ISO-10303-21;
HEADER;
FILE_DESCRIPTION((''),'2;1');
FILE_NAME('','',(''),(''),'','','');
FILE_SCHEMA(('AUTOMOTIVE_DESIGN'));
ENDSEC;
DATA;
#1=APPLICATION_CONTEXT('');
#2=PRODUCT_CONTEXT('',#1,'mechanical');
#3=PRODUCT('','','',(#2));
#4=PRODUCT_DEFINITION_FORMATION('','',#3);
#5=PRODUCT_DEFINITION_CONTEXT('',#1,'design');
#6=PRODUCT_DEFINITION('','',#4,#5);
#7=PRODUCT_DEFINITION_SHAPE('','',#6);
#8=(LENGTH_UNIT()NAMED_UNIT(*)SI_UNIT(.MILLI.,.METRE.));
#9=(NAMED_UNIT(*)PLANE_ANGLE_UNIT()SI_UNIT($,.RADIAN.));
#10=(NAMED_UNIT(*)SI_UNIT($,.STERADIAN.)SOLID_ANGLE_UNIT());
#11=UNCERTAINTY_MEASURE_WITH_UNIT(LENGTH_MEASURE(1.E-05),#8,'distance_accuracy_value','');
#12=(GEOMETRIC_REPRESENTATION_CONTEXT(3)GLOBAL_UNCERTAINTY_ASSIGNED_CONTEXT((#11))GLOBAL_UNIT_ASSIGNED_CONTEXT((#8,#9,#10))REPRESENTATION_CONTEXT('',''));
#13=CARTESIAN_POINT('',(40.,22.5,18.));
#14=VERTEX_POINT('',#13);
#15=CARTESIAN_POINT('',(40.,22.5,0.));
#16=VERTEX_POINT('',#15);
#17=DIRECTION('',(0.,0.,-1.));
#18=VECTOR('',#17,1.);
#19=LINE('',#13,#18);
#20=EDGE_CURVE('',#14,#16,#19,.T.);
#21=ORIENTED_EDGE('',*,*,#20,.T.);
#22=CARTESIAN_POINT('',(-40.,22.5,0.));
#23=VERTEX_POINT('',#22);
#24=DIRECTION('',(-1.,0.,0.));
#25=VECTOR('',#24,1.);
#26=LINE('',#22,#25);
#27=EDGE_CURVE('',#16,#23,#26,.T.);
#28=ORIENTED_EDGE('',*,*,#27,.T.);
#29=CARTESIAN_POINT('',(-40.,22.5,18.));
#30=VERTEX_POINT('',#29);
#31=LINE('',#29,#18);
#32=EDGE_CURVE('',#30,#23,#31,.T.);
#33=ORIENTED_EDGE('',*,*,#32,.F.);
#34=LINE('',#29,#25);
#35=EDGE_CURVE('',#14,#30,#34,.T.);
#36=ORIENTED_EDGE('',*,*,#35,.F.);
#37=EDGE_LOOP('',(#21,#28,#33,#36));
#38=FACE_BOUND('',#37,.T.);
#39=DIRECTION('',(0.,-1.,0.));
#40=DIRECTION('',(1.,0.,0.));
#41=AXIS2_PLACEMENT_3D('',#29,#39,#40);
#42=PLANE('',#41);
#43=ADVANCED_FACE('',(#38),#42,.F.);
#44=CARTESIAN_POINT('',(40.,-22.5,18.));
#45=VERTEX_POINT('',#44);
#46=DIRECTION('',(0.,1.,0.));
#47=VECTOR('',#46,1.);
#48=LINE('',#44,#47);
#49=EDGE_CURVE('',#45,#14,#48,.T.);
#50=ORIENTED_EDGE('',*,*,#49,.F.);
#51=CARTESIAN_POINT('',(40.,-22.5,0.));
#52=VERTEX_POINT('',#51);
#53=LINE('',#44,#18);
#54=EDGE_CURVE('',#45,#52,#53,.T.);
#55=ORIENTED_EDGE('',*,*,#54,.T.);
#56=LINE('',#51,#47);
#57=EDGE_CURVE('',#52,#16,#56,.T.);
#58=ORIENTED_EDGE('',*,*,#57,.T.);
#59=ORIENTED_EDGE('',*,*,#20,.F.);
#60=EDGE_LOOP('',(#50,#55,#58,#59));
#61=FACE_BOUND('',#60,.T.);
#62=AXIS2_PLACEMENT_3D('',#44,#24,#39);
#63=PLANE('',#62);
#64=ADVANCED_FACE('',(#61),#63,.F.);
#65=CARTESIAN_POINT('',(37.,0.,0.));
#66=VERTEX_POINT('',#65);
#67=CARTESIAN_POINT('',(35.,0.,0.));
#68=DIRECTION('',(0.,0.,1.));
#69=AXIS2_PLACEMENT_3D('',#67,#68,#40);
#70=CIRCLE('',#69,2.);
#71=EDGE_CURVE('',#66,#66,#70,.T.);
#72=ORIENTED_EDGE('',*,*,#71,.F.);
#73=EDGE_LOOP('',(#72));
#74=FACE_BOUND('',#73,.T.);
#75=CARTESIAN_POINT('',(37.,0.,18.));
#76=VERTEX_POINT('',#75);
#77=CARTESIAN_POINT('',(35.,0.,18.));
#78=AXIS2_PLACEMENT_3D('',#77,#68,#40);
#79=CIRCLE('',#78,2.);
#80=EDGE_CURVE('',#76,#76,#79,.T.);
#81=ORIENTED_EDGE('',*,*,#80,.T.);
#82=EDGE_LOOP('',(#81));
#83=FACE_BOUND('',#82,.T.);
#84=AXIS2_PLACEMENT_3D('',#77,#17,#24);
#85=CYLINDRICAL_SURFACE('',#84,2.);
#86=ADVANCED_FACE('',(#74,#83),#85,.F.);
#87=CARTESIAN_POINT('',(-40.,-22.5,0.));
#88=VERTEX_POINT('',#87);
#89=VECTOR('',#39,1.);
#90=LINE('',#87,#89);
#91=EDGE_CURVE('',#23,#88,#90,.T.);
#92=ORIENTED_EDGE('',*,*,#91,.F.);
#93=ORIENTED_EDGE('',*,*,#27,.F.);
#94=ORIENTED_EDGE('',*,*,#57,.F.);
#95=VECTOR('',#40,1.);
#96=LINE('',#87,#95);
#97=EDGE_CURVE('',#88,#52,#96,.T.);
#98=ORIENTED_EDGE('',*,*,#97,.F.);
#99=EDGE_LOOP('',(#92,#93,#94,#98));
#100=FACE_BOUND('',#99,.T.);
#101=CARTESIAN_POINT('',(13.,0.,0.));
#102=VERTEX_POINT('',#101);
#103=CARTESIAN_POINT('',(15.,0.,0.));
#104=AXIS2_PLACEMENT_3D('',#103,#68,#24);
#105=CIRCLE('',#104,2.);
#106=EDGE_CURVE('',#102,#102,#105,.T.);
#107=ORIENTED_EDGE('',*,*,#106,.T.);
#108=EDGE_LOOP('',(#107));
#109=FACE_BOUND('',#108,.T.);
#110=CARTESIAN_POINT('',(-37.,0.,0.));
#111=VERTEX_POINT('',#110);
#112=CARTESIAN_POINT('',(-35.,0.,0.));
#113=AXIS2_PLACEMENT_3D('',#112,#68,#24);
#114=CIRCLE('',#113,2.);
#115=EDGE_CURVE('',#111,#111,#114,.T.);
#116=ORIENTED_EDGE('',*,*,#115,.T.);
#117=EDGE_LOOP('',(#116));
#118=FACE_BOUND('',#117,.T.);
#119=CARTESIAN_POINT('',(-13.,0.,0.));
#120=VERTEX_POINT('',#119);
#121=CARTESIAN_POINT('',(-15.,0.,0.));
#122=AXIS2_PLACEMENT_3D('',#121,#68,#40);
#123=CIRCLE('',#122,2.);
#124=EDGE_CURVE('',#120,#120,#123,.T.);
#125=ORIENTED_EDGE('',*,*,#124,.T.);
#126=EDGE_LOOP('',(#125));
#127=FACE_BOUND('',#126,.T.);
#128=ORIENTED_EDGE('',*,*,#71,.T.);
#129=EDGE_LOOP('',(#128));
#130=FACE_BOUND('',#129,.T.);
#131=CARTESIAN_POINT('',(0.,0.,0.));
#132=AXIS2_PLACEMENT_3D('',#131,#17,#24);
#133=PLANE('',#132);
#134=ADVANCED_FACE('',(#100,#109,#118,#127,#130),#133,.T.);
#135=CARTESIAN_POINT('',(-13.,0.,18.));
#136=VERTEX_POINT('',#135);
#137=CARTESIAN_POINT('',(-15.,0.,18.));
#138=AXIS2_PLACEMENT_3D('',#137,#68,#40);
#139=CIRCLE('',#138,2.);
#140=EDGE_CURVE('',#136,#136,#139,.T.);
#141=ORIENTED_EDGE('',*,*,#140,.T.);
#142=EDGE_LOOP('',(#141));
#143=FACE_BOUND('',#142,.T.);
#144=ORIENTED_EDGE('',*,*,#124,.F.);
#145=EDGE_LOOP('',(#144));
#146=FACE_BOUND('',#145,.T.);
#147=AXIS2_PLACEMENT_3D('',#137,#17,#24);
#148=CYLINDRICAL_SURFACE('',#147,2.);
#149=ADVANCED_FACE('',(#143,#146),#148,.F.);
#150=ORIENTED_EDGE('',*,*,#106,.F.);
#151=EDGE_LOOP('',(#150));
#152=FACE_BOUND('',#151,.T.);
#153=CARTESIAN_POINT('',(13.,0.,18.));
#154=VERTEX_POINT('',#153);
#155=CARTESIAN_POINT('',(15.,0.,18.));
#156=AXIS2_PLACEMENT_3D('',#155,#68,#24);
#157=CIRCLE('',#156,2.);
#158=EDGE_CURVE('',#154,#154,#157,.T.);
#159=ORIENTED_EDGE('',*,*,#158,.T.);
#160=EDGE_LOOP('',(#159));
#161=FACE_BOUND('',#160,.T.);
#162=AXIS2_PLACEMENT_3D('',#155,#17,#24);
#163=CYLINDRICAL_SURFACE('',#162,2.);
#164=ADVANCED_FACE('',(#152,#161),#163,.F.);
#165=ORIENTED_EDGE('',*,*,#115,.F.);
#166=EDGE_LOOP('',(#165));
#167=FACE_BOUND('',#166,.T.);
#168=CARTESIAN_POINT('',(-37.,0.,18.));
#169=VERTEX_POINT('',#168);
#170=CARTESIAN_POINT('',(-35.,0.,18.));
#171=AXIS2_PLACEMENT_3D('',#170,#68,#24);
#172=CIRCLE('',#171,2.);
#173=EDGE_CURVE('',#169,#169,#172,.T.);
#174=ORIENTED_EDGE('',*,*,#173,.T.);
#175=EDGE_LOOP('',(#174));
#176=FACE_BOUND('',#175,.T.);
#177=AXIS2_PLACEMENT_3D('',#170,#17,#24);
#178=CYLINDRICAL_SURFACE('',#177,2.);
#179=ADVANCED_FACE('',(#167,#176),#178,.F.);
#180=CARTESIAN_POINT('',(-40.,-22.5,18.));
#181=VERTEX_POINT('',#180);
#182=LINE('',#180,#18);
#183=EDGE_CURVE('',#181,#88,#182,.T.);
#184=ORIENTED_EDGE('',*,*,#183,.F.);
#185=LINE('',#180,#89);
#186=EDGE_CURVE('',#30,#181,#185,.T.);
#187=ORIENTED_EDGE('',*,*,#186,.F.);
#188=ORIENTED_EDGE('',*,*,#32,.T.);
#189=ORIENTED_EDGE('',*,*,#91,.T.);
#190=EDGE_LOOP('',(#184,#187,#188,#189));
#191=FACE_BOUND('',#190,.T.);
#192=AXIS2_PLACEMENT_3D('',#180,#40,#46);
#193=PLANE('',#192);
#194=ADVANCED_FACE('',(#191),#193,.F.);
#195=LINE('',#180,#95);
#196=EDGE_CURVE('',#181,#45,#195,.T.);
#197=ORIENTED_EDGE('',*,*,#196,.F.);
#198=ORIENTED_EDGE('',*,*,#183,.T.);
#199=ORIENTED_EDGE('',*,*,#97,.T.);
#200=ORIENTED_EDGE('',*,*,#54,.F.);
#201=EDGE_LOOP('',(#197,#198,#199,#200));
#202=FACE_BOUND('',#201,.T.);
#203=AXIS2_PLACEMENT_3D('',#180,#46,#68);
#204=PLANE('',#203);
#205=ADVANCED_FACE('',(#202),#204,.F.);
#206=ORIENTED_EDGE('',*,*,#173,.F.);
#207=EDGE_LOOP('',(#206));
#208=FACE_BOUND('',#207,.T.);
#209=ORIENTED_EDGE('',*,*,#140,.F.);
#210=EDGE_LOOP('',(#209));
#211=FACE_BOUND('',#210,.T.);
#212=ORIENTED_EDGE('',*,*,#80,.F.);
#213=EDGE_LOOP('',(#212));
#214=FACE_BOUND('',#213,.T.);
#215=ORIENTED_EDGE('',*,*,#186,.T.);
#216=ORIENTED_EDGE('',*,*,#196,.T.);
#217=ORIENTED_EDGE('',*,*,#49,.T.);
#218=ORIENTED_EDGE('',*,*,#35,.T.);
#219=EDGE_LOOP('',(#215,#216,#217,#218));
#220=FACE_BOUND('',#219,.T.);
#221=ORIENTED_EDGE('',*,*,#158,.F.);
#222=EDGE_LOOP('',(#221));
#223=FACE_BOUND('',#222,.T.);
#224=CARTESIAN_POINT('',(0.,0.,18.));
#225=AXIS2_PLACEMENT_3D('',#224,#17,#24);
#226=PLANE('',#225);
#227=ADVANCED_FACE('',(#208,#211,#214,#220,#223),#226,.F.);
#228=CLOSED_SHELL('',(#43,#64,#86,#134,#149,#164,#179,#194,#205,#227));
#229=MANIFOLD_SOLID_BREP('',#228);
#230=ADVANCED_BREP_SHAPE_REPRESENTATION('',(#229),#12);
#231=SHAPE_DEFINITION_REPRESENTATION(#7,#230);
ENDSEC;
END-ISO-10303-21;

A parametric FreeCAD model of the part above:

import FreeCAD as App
import Part
import Sketcher
from FreeCAD import Vector
Q = App.Units.Quantity

doc = App.newDocument("Part")
body = doc.addObject("PartDesign::Body", "Body")

# Sketch on XY plane
sketch1 = body.newObject("Sketcher::SketchObject", "Sketch")
sketch1.AttachmentSupport = (doc.getObject("XY_Plane"), [""])
sketch1.MapMode = "FlatFace"
sketch1.addGeometry([
    Part.LineSegment(Vector(-40, 22.5, 0), Vector(-40, -22.5, 0)),  # 0
    Part.LineSegment(Vector(-40, -22.5, 0), Vector(40, -22.5, 0)),  # 1
    Part.LineSegment(Vector(40, -22.5, 0), Vector(40, 22.5, 0)),  # 2
    Part.LineSegment(Vector(40, 22.5, 0), Vector(-40, 22.5, 0)),  # 3
    Part.Circle(Vector(-35, 0, 0), Vector(0, 0, 1), 2),  # 4
    Part.Circle(Vector(-15, 0, 0), Vector(0, 0, 1), 2),  # 5
    Part.Circle(Vector(15, 0, 0), Vector(0, 0, 1), 2),  # 6
    Part.Circle(Vector(35, 0, 0), Vector(0, 0, 1), 2),  # 7
], False)
sketch1.addConstraint([
    Sketcher.Constraint("Coincident", 0, 2, 1, 1),
    Sketcher.Constraint("Coincident", 1, 2, 2, 1),
    Sketcher.Constraint("Coincident", 2, 2, 3, 1),
    Sketcher.Constraint("Coincident", 3, 2, 0, 1),
    Sketcher.Constraint("Vertical", 0),
    Sketcher.Constraint("Horizontal", 1),
    Sketcher.Constraint("Vertical", 2),
    Sketcher.Constraint("Horizontal", 3),
    Sketcher.Constraint("Equal", 4, 5),
    Sketcher.Constraint("Equal", 5, 6),
    Sketcher.Constraint("Equal", 6, 7),
    Sketcher.Constraint("Symmetric", 5, 3, 6, 3, -1, 1),
    Sketcher.Constraint("Symmetric", 4, 3, 7, 3, -1, 1),
    Sketcher.Constraint("Symmetric", 0, 2, 2, 2, -1, 1),
    Sketcher.Constraint("PointOnObject", 4, 3, -1),
    Sketcher.Constraint("PointOnObject", 5, 3, -1),
    Sketcher.Constraint("Diameter", 4, Q("4 mm")),
    Sketcher.Constraint("DistanceX", 1, 1, 1, 2, Q("80 mm")),
    Sketcher.Constraint("DistanceY", 0, 2, 0, 1, Q("45 mm")),
    Sketcher.Constraint("DistanceX", 4, 3, -1, 1, Q("35 mm")),
    Sketcher.Constraint("DistanceX", 5, 3, -1, 1, Q("15 mm")),
])
pad1 = body.newObject("PartDesign::Pad", "Pad")
pad1.Profile = sketch1
pad1.Length = 18

doc.recompute()
